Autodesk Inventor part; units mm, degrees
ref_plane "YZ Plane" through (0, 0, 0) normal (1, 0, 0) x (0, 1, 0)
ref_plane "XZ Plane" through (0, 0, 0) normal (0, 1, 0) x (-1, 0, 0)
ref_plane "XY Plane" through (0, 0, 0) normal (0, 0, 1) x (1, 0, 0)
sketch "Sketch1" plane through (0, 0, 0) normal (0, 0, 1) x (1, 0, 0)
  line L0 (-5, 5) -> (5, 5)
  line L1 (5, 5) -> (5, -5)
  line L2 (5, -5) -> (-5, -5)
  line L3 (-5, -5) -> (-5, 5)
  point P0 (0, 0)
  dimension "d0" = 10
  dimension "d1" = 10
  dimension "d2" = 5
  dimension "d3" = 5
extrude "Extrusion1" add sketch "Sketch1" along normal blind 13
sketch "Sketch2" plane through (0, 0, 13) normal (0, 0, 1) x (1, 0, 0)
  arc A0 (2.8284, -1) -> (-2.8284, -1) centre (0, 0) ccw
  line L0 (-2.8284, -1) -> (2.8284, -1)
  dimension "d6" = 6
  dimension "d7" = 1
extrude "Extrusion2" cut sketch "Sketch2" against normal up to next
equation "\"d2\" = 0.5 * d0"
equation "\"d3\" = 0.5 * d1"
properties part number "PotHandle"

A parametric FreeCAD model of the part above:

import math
import FreeCAD as App
import Part
import Sketcher
Q = App.Units.Quantity

doc = App.newDocument("Part")
body = doc.addObject("PartDesign::Body", "Body")

# Sketch on XY plane
sketch1 = body.newObject("Sketcher::SketchObject", "Sketch")
sketch1.AttachmentSupport = (doc.getObject("XY_Plane"), [""])
sketch1.MapMode = "FlatFace"
sketch1.addGeometry([
    Part.LineSegment(App.Vector(5, 5, 0), App.Vector(-5, 5, 0)),
    Part.LineSegment(App.Vector(-5, 5, 0), App.Vector(-5, -5, 0)),
    Part.LineSegment(App.Vector(-5, -5, 0), App.Vector(5, -5, 0)),
    Part.LineSegment(App.Vector(5, -5, 0), App.Vector(5, 5, 0)),
], False)
sketch1.addConstraint([
    Sketcher.Constraint("Coincident", 0, 2, 1, 1),
    Sketcher.Constraint("Coincident", 1, 2, 2, 1),
    Sketcher.Constraint("Coincident", 2, 2, 3, 1),
    Sketcher.Constraint("Coincident", 3, 2, 0, 1),
    Sketcher.Constraint("Horizontal", 0),
    Sketcher.Constraint("Vertical", 1),
    Sketcher.Constraint("Horizontal", 2),
    Sketcher.Constraint("Vertical", 3),
    Sketcher.Constraint("Symmetric", 0, 2, 2, 2, -1, 1),
    Sketcher.Constraint("Equal", 2, 1),
    Sketcher.Constraint("DistanceX", 0, 2, 0, 1, Q("10 mm")),
])
pad1 = body.newObject("PartDesign::Pad", "Pad")
pad1.Profile = sketch1
pad1.Length = 13

# Sketch on XY plane
sketch2 = body.newObject("Sketcher::SketchObject", "Sketch001")
sketch2.AttachmentSupport = (doc.getObject("XY_Plane"), [""])
sketch2.MapMode = "FlatFace"
sketch2.AttachmentOffset = App.Placement(App.Vector(0, 0, 13), App.Rotation())
sketch2.addGeometry([
    Part.LineSegment(App.Vector(-2.8284, -1, 0), App.Vector(2.8284, -1, 0)),
    Part.ArcOfCircle(Part.Circle(App.Vector(0, 0, 0), App.Vector(0, 0, 1), 2.999974), math.radians(-19.471393), math.radians(199.471393)),
], False)
sketch2.addConstraint([
    Sketcher.Constraint("Coincident", 0, 1, 1, 2),
    Sketcher.Constraint("Coincident", 1, 1, 0, 2),
    Sketcher.Constraint("Horizontal", 0),
    Sketcher.Constraint("Coincident", 1, 3, -1, 1),
    Sketcher.Constraint("Radius", 1, Q("3 mm")),
    Sketcher.Constraint("DistanceY", 0, 1, -1, 1, Q("1 mm")),
])
pocket1 = body.newObject("PartDesign::Pocket", "Pocket")
pocket1.Profile = sketch2
pocket1.Type = "UpToFirst"

doc.recompute()
